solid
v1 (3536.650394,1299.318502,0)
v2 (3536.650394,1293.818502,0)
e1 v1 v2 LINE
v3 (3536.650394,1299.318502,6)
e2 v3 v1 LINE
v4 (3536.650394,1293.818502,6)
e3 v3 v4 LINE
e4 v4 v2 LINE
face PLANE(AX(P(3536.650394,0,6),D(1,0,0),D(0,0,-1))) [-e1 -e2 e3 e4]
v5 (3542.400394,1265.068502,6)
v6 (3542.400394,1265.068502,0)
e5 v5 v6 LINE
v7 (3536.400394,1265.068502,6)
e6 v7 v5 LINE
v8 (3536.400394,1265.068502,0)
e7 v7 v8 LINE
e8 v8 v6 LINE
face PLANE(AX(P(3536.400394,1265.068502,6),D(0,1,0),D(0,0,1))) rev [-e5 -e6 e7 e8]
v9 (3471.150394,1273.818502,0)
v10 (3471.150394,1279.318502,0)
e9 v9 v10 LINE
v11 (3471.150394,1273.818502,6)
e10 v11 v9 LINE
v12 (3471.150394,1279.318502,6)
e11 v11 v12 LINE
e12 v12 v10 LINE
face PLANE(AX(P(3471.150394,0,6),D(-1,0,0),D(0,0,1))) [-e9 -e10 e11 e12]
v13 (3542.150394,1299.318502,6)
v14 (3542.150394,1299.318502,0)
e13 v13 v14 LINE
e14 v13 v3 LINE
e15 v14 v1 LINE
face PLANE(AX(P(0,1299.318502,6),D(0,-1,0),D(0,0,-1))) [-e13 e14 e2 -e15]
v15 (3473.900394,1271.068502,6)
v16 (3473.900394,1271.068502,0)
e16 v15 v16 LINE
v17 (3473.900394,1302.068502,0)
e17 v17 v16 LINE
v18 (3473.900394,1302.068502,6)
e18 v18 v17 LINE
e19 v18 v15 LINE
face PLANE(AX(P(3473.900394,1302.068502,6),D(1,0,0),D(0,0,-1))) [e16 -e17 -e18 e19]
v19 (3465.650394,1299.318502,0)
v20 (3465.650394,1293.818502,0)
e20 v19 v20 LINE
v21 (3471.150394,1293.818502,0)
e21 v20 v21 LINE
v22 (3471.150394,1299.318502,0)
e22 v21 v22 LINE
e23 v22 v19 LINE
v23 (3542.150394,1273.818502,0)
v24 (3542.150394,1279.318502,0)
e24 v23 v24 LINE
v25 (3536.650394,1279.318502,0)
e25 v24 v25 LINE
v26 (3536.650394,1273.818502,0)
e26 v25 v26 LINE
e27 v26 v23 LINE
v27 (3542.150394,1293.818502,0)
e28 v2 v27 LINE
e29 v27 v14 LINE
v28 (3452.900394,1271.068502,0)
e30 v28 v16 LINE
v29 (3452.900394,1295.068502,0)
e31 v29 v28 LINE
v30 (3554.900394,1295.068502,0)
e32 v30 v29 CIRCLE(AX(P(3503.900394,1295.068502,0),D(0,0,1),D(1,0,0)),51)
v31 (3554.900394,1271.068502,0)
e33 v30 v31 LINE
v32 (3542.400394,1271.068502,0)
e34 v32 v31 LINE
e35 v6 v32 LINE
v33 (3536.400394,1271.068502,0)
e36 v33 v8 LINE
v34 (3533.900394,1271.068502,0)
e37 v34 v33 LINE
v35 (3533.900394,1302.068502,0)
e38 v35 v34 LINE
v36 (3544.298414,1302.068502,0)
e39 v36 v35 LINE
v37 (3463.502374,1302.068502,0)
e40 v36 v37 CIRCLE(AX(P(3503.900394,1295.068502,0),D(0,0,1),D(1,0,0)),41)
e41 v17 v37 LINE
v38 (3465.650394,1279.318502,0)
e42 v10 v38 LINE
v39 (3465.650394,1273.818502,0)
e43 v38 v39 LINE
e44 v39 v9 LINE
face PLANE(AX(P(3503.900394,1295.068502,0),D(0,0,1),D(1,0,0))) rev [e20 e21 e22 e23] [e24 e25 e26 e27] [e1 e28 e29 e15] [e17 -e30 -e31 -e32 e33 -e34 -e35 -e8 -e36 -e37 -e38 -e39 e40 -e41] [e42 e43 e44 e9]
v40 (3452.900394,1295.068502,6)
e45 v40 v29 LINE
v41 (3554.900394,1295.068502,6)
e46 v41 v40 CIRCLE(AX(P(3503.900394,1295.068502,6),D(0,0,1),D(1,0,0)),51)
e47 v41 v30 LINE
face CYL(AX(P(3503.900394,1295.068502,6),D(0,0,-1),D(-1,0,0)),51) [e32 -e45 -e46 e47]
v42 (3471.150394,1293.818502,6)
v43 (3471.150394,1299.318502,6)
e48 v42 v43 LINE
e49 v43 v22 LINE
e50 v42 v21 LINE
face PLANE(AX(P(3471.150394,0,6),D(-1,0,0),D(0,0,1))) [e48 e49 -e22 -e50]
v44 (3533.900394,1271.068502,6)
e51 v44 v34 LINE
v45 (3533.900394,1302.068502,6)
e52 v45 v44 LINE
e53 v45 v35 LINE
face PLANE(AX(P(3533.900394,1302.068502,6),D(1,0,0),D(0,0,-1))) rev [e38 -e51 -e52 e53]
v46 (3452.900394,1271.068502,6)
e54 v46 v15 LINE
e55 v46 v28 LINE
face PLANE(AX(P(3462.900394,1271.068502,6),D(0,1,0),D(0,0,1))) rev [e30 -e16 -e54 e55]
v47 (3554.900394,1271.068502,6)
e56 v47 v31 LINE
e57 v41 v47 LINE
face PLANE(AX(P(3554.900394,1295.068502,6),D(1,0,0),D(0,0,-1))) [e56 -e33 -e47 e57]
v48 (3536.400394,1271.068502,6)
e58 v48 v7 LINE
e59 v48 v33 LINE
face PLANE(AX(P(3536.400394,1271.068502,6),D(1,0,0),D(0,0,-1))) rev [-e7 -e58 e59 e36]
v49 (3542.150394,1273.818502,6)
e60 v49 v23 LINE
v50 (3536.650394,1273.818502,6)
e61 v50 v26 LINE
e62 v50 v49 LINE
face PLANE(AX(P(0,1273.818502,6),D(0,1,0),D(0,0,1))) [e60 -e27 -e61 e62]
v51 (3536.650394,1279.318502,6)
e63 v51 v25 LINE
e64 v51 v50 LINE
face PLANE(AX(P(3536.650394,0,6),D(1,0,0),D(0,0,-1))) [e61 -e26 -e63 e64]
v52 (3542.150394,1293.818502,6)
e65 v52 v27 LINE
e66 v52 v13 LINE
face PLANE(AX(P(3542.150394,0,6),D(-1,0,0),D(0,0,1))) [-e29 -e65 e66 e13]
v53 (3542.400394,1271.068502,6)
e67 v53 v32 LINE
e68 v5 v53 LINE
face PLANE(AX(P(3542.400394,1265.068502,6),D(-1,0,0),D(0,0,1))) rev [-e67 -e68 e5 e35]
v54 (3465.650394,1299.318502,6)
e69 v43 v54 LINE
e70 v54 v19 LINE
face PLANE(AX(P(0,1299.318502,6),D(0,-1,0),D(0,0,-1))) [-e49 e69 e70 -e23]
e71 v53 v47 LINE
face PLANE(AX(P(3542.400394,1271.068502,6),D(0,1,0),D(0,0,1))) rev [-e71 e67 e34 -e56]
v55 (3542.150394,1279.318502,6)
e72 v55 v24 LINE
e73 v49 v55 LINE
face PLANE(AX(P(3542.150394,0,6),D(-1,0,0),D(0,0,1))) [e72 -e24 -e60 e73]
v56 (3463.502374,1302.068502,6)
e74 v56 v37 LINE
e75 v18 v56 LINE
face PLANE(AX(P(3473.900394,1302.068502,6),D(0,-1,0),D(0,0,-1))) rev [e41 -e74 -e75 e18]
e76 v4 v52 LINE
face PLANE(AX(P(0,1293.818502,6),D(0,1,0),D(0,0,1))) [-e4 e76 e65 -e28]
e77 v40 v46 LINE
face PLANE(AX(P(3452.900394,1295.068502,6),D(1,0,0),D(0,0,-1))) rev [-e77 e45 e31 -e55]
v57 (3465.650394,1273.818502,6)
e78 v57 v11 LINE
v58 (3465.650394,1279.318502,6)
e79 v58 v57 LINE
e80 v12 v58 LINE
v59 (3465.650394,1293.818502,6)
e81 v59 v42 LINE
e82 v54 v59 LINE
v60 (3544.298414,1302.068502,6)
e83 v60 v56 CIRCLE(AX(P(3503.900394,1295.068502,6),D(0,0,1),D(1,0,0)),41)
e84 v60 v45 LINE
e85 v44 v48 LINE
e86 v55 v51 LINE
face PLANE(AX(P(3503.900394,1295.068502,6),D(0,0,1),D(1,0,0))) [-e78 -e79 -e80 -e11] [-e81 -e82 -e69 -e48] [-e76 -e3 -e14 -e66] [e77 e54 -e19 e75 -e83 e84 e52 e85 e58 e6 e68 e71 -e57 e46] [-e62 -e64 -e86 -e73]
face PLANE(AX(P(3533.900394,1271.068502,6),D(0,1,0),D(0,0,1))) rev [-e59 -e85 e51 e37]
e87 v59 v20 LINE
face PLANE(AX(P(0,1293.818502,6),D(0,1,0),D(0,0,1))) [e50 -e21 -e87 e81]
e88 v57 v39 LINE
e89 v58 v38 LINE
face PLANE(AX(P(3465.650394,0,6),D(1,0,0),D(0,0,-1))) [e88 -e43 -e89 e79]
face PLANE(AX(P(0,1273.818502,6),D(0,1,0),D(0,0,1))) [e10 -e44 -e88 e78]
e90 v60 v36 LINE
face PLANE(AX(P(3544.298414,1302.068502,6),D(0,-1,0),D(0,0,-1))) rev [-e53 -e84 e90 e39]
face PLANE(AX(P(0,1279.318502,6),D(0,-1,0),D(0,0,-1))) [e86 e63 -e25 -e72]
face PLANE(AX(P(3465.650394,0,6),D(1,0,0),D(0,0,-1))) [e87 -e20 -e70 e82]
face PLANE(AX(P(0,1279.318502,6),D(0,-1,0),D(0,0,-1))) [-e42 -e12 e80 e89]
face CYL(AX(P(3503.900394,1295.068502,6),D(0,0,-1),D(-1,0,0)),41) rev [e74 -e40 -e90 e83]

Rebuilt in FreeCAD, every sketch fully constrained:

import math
import FreeCAD as App
import Part
import Sketcher

V = App.Vector

doc = App.newDocument("Part")
params = doc.addObject("Spreadsheet::Sheet", "Params")
for row, (alias, value) in enumerate([
    ("sketch1_radius", "41 mm"),
    ("sketch1_radius2", "51 mm"),
    ("sketch1_width", "21 mm"),
    ("sketch1_width2", "6 mm"),
    ("sketch1_height", "24 mm"),
    ("pad1_length", "6 mm"),
], start=1):
    params.set(f"A{row}", alias)
    params.set(f"B{row}", "=" + value)
    params.setAlias(f"B{row}", alias)

body = doc.addObject("PartDesign::Body", "Body")

# Sketch on XY plane
sketch1 = body.newObject("Sketcher::SketchObject", "Sketch")
sketch1.AttachmentSupport = (doc.getObject("XY_Plane"), [""])
sketch1.MapMode = "FlatFace"
sketch1.addGeometry(Part.LineSegment(V(3452.9, 1295.1, 0), V(3452.9, 1271.1, 0)), False)
sketch1.addGeometry(Part.LineSegment(V(3452.9, 1271.1, 0), V(3473.9, 1271.1, 0)), False)
sketch1.addGeometry(Part.LineSegment(V(3473.9, 1271.1, 0), V(3473.9, 1302.1, 0)), False)
sketch1.addGeometry(Part.LineSegment(V(3473.9, 1302.1, 0), V(3463.5, 1302.1, 0)), False)
sketch1.addGeometry(Part.ArcOfCircle(Part.Circle(V(3503.9, 1295.1, 0), V(0, 0, 1), 41), math.radians(10), math.radians(170)), False)
sketch1.addGeometry(Part.LineSegment(V(3544.3, 1302.1, 0), V(3533.9, 1302.1, 0)), False)
sketch1.addGeometry(Part.LineSegment(V(3533.9, 1302.1, 0), V(3533.9, 1271.1, 0)), False)
sketch1.addGeometry(Part.LineSegment(V(3533.9, 1271.1, 0), V(3536.4, 1271.1, 0)), False)
sketch1.addGeometry(Part.LineSegment(V(3536.4, 1271.1, 0), V(3536.4, 1265.1, 0)), False)
sketch1.addGeometry(Part.LineSegment(V(3536.4, 1265.1, 0), V(3542.4, 1265.1, 0)), False)
sketch1.addGeometry(Part.LineSegment(V(3542.4, 1265.1, 0), V(3542.4, 1271.1, 0)), False)
sketch1.addGeometry(Part.LineSegment(V(3542.4, 1271.1, 0), V(3554.9, 1271.1, 0)), False)
sketch1.addGeometry(Part.LineSegment(V(3554.9, 1271.1, 0), V(3554.9, 1295.1, 0)), False)
sketch1.addGeometry(Part.ArcOfCircle(Part.Circle(V(3503.9, 1295.1, 0), V(0, 0, 1), 51), math.radians(0), math.radians(180)), False)
sketch1.addGeometry(Part.LineSegment(V(3471.2, 1273.8, 0), V(3465.7, 1273.8, 0)), False)
sketch1.addGeometry(Part.LineSegment(V(3465.7, 1273.8, 0), V(3465.7, 1279.3, 0)), False)
sketch1.addGeometry(Part.LineSegment(V(3465.7, 1279.3, 0), V(3471.2, 1279.3, 0)), False)
sketch1.addGeometry(Part.LineSegment(V(3471.2, 1279.3, 0), V(3471.2, 1273.8, 0)), False)
sketch1.addGeometry(Part.LineSegment(V(3542.2, 1273.8, 0), V(3536.7, 1273.8, 0)), False)
sketch1.addGeometry(Part.LineSegment(V(3536.7, 1273.8, 0), V(3536.7, 1279.3, 0)), False)
sketch1.addGeometry(Part.LineSegment(V(3536.7, 1279.3, 0), V(3542.2, 1279.3, 0)), False)
sketch1.addGeometry(Part.LineSegment(V(3542.2, 1279.3, 0), V(3542.2, 1273.8, 0)), False)
sketch1.addGeometry(Part.LineSegment(V(3471.2, 1293.8, 0), V(3465.7, 1293.8, 0)), False)
sketch1.addGeometry(Part.LineSegment(V(3465.7, 1293.8, 0), V(3465.7, 1299.3, 0)), False)
sketch1.addGeometry(Part.LineSegment(V(3465.7, 1299.3, 0), V(3471.2, 1299.3, 0)), False)
sketch1.addGeometry(Part.LineSegment(V(3471.2, 1299.3, 0), V(3471.2, 1293.8, 0)), False)
sketch1.addGeometry(Part.LineSegment(V(3542.2, 1293.8, 0), V(3536.7, 1293.8, 0)), False)
sketch1.addGeometry(Part.LineSegment(V(3536.7, 1293.8, 0), V(3536.7, 1299.3, 0)), False)
sketch1.addGeometry(Part.LineSegment(V(3536.7, 1299.3, 0), V(3542.2, 1299.3, 0)), False)
sketch1.addGeometry(Part.LineSegment(V(3542.2, 1299.3, 0), V(3542.2, 1293.8, 0)), False)
sketch1.addConstraint(Sketcher.Constraint("Coincident", 0, 2, 1, 1))
sketch1.addConstraint(Sketcher.Constraint("Coincident", 1, 2, 2, 1))
sketch1.addConstraint(Sketcher.Constraint("Coincident", 2, 2, 3, 1))
sketch1.addConstraint(Sketcher.Constraint("Coincident", 3, 2, 4, 2))
sketch1.addConstraint(Sketcher.Constraint("Coincident", 4, 1, 5, 1))
sketch1.addConstraint(Sketcher.Constraint("Coincident", 5, 2, 6, 1))
sketch1.addConstraint(Sketcher.Constraint("Coincident", 6, 2, 7, 1))
sketch1.addConstraint(Sketcher.Constraint("Coincident", 7, 2, 8, 1))
sketch1.addConstraint(Sketcher.Constraint("Coincident", 8, 2, 9, 1))
sketch1.addConstraint(Sketcher.Constraint("Coincident", 9, 2, 10, 1))
sketch1.addConstraint(Sketcher.Constraint("Coincident", 10, 2, 11, 1))
sketch1.addConstraint(Sketcher.Constraint("Coincident", 11, 2, 12, 1))
sketch1.addConstraint(Sketcher.Constraint("Tangent", 12, 2, 13, 1))
sketch1.addConstraint(Sketcher.Constraint("Tangent", 13, 2, 0, 1))
sketch1.addConstraint(Sketcher.Constraint("Coincident", 14, 2, 15, 1))
sketch1.addConstraint(Sketcher.Constraint("Coincident", 15, 2, 16, 1))
sketch1.addConstraint(Sketcher.Constraint("Coincident", 16, 2, 17, 1))
sketch1.addConstraint(Sketcher.Constraint("Coincident", 17, 2, 14, 1))
sketch1.addConstraint(Sketcher.Constraint("Coincident", 18, 2, 19, 1))
sketch1.addConstraint(Sketcher.Constraint("Coincident", 19, 2, 20, 1))
sketch1.addConstraint(Sketcher.Constraint("Coincident", 20, 2, 21, 1))
sketch1.addConstraint(Sketcher.Constraint("Coincident", 21, 2, 18, 1))
sketch1.addConstraint(Sketcher.Constraint("Coincident", 22, 2, 23, 1))
sketch1.addConstraint(Sketcher.Constraint("Coincident", 23, 2, 24, 1))
sketch1.addConstraint(Sketcher.Constraint("Coincident", 24, 2, 25, 1))
sketch1.addConstraint(Sketcher.Constraint("Coincident", 25, 2, 22, 1))
sketch1.addConstraint(Sketcher.Constraint("Coincident", 26, 2, 27, 1))
sketch1.addConstraint(Sketcher.Constraint("Coincident", 27, 2, 28, 1))
sketch1.addConstraint(Sketcher.Constraint("Coincident", 28, 2, 29, 1))
sketch1.addConstraint(Sketcher.Constraint("Coincident", 29, 2, 26, 1))
sketch1.addConstraint(Sketcher.Constraint("Vertical", 0))
sketch1.addConstraint(Sketcher.Constraint("Horizontal", 1))
sketch1.addConstraint(Sketcher.Constraint("Vertical", 2))
sketch1.addConstraint(Sketcher.Constraint("Horizontal", 3))
sketch1.addConstraint(Sketcher.Constraint("Horizontal", 5))
sketch1.addConstraint(Sketcher.Constraint("Vertical", 6))
sketch1.addConstraint(Sketcher.Constraint("Horizontal", 7))
sketch1.addConstraint(Sketcher.Constraint("Vertical", 8))
sketch1.addConstraint(Sketcher.Constraint("Horizontal", 9))
sketch1.addConstraint(Sketcher.Constraint("Vertical", 10))
sketch1.addConstraint(Sketcher.Constraint("Horizontal", 11))
sketch1.addConstraint(Sketcher.Constraint("Vertical", 12))
sketch1.addConstraint(Sketcher.Constraint("Horizontal", 14))
sketch1.addConstraint(Sketcher.Constraint("Vertical", 15))
sketch1.addConstraint(Sketcher.Constraint("Horizontal", 16))
sketch1.addConstraint(Sketcher.Constraint("Vertical", 17))
sketch1.addConstraint(Sketcher.Constraint("Horizontal", 18))
sketch1.addConstraint(Sketcher.Constraint("Vertical", 19))
sketch1.addConstraint(Sketcher.Constraint("Horizontal", 20))
sketch1.addConstraint(Sketcher.Constraint("Vertical", 21))
sketch1.addConstraint(Sketcher.Constraint("Horizontal", 22))
sketch1.addConstraint(Sketcher.Constraint("Vertical", 23))
sketch1.addConstraint(Sketcher.Constraint("Horizontal", 24))
sketch1.addConstraint(Sketcher.Constraint("Vertical", 25))
sketch1.addConstraint(Sketcher.Constraint("Horizontal", 26))
sketch1.addConstraint(Sketcher.Constraint("Vertical", 27))
sketch1.addConstraint(Sketcher.Constraint("Horizontal", 28))
sketch1.addConstraint(Sketcher.Constraint("Vertical", 29))
sketch1.addConstraint(Sketcher.Constraint("Coincident", 13, 3, 4, 3))
sketch1.addConstraint(Sketcher.Constraint("Horizontal", 3, 2, 4, 1))
sketch1.addConstraint(Sketcher.Constraint("Horizontal", 1, 2, 6, 2))
sketch1.addConstraint(Sketcher.Constraint("Horizontal", 7, 2, 10, 2))
sketch1.addConstraint(Sketcher.Constraint("Horizontal", 17, 2, 18, 2))
sketch1.addConstraint(Sketcher.Constraint("Horizontal", 16, 2, 19, 2))
sketch1.addConstraint(Sketcher.Constraint("Horizontal", 25, 2, 26, 2))
sketch1.addConstraint(Sketcher.Constraint("Horizontal", 24, 2, 27, 2))
sketch1.addConstraint(Sketcher.Constraint("Vertical", 15, 2, 22, 2))
sketch1.addConstraint(Sketcher.Constraint("Vertical", 17, 2, 24, 2))
sketch1.addConstraint(Sketcher.Constraint("Vertical", 19, 2, 26, 2))
sketch1.addConstraint(Sketcher.Constraint("Vertical", 21, 2, 28, 2))
sketch1.addConstraint(Sketcher.Constraint("Equal", 3, 5))
sketch1.addConstraint(Sketcher.Constraint("Equal", 16, 18))
sketch1.addConstraint(Sketcher.Constraint("Equal", 9, 8))
sketch1.addConstraint(Sketcher.Constraint("Equal", 28, 15))
sketch1.addConstraint(Sketcher.Constraint("Equal", 21, 23))
sketch1.addConstraint(Sketcher.Constraint("Radius", 4, 41.0))
sketch1.addConstraint(Sketcher.Constraint("Radius", 13, 51.0))
sketch1.addConstraint(Sketcher.Constraint("DistanceX", 1, 1, 1, 2, 21.0))
sketch1.addConstraint(Sketcher.Constraint("DistanceX", 9, 1, 9, 2, 6.0))
sketch1.addConstraint(Sketcher.Constraint("DistanceY", 0, 2, 0, 1, 24.0))
sketch1.addConstraint(Sketcher.Constraint("DistanceY", 2, 1, 2, 2, 31.0))
sketch1.addConstraint(Sketcher.Constraint("DistanceX", 7, 1, 7, 2, 2.5))
sketch1.addConstraint(Sketcher.Constraint("DistanceX", 14, 2, 14, 1, 5.5))
sketch1.addConstraint(Sketcher.Constraint("DistanceY", 15, 2, 23, 2, 20.0))
sketch1.addConstraint(Sketcher.Constraint("DistanceX", 14, 2, 1, 2, 8.25))
sketch1.addConstraint(Sketcher.Constraint("DistanceY", 1, 2, 14, 2, 2.75))
sketch1.addConstraint(Sketcher.Constraint("DistanceX", 7, 2, 18, 2, 0.25))
sketch1.addConstraint(Sketcher.Constraint("DistanceX", -1, 1, 4, 3, 3503.900394))
sketch1.addConstraint(Sketcher.Constraint("DistanceY", -1, 1, 4, 3, 1295.068502))
sketch1.setExpression("Constraints[75]", "Params.sketch1_radius")
sketch1.setExpression("Constraints[76]", "Params.sketch1_radius2")
sketch1.setExpression("Constraints[77]", "Params.sketch1_width")
sketch1.setExpression("Constraints[78]", "Params.sketch1_width2")
sketch1.setExpression("Constraints[79]", "Params.sketch1_height")
pad1 = body.newObject("PartDesign::Pad", "Pad")
pad1.Profile = sketch1
pad1.setExpression("Length", "Params.pad1_length")

doc.recompute()
